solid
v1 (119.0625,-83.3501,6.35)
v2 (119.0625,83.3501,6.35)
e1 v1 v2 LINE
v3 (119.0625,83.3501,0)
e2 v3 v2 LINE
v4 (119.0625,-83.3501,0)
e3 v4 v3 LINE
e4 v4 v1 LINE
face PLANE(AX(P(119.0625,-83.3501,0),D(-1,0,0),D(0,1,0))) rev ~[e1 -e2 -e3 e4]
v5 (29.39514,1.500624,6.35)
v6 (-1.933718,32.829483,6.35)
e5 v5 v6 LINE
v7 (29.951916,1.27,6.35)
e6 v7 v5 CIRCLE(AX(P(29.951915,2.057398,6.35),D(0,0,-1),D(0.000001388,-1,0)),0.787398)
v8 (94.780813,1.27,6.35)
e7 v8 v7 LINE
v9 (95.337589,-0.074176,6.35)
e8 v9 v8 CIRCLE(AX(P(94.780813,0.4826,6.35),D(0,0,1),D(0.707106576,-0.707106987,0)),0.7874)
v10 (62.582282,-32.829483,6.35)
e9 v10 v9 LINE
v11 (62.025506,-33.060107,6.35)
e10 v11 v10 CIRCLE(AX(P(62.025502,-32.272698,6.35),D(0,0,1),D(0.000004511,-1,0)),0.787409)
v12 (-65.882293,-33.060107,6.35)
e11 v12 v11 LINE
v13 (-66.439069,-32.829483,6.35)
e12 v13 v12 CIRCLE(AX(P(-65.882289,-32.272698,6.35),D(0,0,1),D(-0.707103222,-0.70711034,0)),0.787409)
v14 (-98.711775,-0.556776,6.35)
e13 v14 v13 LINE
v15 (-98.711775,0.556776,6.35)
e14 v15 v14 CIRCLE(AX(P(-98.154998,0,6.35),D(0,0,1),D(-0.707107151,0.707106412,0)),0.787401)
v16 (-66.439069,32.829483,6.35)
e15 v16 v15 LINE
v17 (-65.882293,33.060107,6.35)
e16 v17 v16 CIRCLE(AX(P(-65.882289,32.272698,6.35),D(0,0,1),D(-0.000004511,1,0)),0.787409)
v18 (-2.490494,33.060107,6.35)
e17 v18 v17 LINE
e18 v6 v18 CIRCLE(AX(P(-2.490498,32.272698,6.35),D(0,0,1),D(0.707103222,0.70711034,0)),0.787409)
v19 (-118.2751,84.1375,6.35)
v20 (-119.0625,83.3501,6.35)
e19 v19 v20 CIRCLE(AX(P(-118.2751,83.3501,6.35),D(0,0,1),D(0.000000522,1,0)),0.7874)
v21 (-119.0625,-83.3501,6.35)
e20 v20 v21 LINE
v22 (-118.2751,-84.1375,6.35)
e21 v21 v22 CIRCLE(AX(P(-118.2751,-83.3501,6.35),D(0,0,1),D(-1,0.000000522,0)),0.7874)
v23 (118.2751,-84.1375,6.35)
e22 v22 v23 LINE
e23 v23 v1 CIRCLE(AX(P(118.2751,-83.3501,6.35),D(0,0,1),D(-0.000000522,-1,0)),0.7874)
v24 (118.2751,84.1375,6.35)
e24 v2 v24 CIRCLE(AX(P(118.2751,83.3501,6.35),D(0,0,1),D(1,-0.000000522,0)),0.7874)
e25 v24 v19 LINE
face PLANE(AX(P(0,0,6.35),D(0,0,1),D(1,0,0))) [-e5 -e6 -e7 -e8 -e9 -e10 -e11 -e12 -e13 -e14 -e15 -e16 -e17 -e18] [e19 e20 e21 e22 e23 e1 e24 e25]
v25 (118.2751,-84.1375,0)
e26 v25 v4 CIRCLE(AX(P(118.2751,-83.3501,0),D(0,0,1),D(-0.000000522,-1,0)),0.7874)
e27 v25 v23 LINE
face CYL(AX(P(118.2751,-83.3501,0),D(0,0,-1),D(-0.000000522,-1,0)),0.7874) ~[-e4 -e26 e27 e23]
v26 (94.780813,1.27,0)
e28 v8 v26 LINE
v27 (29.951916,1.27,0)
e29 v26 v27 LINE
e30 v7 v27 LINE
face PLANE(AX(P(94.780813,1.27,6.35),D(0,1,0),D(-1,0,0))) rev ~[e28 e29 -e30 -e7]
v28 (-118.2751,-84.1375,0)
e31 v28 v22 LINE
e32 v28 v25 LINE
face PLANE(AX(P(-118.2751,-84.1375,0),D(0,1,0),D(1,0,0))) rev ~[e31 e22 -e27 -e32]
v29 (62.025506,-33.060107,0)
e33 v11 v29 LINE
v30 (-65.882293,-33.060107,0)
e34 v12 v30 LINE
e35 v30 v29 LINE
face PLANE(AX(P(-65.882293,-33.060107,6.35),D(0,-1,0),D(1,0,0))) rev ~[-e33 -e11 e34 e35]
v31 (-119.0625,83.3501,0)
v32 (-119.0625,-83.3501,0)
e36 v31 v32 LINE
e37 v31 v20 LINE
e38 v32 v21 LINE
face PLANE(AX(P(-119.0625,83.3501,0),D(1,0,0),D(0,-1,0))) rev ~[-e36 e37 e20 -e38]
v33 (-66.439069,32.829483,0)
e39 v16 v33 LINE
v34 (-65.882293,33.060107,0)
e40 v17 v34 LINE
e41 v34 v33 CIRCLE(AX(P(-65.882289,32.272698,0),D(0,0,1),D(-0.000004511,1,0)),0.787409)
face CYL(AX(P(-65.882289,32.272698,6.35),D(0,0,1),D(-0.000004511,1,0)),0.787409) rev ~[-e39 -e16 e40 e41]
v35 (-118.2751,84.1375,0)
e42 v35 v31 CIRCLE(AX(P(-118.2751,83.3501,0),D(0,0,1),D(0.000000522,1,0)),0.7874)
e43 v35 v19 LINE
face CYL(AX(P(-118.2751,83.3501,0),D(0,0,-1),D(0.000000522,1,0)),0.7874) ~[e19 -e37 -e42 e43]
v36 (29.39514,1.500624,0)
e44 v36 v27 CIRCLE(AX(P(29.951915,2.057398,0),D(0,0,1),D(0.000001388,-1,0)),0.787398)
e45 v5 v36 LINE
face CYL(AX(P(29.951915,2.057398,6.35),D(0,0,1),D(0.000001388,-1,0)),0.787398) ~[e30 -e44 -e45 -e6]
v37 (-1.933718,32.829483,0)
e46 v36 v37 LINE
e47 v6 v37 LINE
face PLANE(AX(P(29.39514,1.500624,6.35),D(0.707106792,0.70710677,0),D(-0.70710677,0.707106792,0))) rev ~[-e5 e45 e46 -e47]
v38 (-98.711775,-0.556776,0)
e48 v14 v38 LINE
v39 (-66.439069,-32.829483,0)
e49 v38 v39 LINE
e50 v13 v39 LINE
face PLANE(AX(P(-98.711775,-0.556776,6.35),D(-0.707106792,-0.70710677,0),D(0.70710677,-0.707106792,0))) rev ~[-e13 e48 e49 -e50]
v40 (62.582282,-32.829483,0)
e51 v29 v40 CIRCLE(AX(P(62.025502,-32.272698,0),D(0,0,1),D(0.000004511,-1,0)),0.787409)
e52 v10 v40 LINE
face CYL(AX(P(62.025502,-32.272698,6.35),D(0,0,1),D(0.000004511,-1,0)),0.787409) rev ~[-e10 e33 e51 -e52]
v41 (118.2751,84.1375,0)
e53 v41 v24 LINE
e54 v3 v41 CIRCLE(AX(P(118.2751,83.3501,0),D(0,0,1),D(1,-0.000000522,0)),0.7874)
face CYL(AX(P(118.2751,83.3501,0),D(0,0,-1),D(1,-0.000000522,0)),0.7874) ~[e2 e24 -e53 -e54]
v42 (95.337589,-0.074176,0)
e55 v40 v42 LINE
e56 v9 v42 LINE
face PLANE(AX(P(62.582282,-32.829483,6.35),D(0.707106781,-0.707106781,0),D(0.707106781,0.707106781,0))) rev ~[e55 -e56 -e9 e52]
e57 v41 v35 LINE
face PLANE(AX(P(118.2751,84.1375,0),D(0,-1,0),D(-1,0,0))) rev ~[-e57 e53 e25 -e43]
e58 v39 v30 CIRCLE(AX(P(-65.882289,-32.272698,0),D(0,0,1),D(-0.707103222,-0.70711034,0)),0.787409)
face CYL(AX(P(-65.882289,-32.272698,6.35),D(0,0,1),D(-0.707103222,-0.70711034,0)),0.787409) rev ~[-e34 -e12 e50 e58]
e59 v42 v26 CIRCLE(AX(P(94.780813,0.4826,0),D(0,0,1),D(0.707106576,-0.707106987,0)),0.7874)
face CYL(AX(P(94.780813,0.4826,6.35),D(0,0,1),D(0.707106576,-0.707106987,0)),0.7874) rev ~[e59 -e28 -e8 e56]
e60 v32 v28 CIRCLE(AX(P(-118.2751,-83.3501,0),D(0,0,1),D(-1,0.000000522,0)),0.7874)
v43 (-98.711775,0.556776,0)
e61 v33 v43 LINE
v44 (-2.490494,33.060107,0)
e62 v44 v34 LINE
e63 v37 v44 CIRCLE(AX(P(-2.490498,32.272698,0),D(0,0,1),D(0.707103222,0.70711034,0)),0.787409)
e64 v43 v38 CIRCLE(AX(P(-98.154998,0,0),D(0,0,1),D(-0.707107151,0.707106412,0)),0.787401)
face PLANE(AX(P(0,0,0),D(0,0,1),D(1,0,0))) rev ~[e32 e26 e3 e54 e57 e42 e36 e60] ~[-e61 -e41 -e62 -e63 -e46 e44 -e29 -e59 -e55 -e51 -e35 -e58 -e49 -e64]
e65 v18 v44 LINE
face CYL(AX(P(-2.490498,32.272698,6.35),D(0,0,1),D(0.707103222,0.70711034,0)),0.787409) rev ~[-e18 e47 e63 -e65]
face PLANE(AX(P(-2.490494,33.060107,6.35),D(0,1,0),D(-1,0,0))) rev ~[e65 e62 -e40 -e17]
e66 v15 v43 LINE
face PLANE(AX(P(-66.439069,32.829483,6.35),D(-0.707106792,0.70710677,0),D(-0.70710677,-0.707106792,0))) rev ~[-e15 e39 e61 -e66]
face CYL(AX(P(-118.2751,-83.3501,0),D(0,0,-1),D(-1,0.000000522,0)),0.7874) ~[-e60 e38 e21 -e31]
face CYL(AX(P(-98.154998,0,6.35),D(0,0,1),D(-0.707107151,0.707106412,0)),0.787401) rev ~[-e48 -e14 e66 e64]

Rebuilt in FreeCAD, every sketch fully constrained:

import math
import FreeCAD as App
import Part
import Sketcher

V = App.Vector
Q = App.Units.Quantity

doc = App.newDocument("Part")
body = doc.addObject("PartDesign::Body", "Body")

# Sketch on XY plane
sketch1 = doc.addObject("Sketcher::SketchObject", "Sketch")
body.addObject(sketch1)
sketch1.AttachmentSupport = (doc.XY_Plane, [""])
sketch1.MapMode = "FlatFace"
sketch1.addGeometry(Part.LineSegment(V(118.3, 84.1, 0), V(-118.3, 84.1, 0)), False)
sketch1.addGeometry(Part.ArcOfCircle(Part.Circle(V(-118.3, 83.4, 0), V(0, 0, 1), 0.8), math.radians(90), math.radians(180)), False)
sketch1.addGeometry(Part.LineSegment(V(-119.1, 83.4, 0), V(-119.1, -83.4, 0)), False)
sketch1.addGeometry(Part.ArcOfCircle(Part.Circle(V(-118.3, -83.4, 0), V(0, 0, 1), 0.8), math.radians(180), math.radians(270)), False)
sketch1.addGeometry(Part.LineSegment(V(-118.3, -84.1, 0), V(118.3, -84.1, 0)), False)
sketch1.addGeometry(Part.ArcOfCircle(Part.Circle(V(118.3, -83.4, 0), V(0, 0, 1), 0.8), math.radians(-90), math.radians(0)), False)
sketch1.addGeometry(Part.LineSegment(V(119.1, -83.4, 0), V(119.1, 83.4, 0)), False)
sketch1.addGeometry(Part.ArcOfCircle(Part.Circle(V(118.3, 83.4, 0), V(0, 0, 1), 0.8), math.radians(0), math.radians(90)), False)
sketch1.addConstraint(Sketcher.Constraint("Tangent", 0, 2, 1, 1))
sketch1.addConstraint(Sketcher.Constraint("Tangent", 1, 2, 2, 1))
sketch1.addConstraint(Sketcher.Constraint("Tangent", 2, 2, 3, 1))
sketch1.addConstraint(Sketcher.Constraint("Tangent", 3, 2, 4, 1))
sketch1.addConstraint(Sketcher.Constraint("Tangent", 4, 2, 5, 1))
sketch1.addConstraint(Sketcher.Constraint("Tangent", 5, 2, 6, 1))
sketch1.addConstraint(Sketcher.Constraint("Tangent", 6, 2, 7, 1))
sketch1.addConstraint(Sketcher.Constraint("Tangent", 7, 2, 0, 1))
sketch1.addConstraint(Sketcher.Constraint("Horizontal", 0))
sketch1.addConstraint(Sketcher.Constraint("Vertical", 2))
sketch1.addConstraint(Sketcher.Constraint("Horizontal", 4))
sketch1.addConstraint(Sketcher.Constraint("Vertical", 6))
sketch1.addConstraint(Sketcher.Constraint("Equal", 1, 3))
sketch1.addConstraint(Sketcher.Constraint("Equal", 3, 5))
sketch1.addConstraint(Sketcher.Constraint("Equal", 5, 7))
sketch1.addConstraint(Sketcher.Constraint("Symmetric", 1, 3, 5, 3, -1, 1))
sketch1.addConstraint(Sketcher.Constraint("Radius", 1, Q("0.031 in")))
sketch1.addConstraint(Sketcher.Constraint("DistanceX", 0, 2, 0, 1, Q("9.313 in")))
sketch1.addConstraint(Sketcher.Constraint("DistanceY", 2, 2, 2, 1, Q("6.563 in")))
pad1 = doc.addObject("PartDesign::Pad", "Pad")
body.addObject(pad1)
pad1.Profile = sketch1
pad1.Length = Q("0.25 in")

# Sketch on XY plane
sketch2 = doc.addObject("Sketcher::SketchObject", "Sketch001")
body.addObject(sketch2)
sketch2.AttachmentSupport = (doc.XY_Plane, [""])
sketch2.MapMode = "FlatFace"
sketch2.AttachmentOffset = App.Placement(V(0, 0, 0.25 * 25.4), App.Rotation())
sketch2.addGeometry(Part.LineSegment(V(-3, 32, 0), V(-66, 32, 0)), False)
sketch2.addGeometry(Part.LineSegment(V(-66, 32, 0), V(-97, 0, 0)), False)
sketch2.addGeometry(Part.LineSegment(V(-97, 0, 0), V(-66, -32, 0)), False)
sketch2.addGeometry(Part.LineSegment(V(-66, -32, 0), V(62, -32, 0)), False)
sketch2.addGeometry(Part.LineSegment(V(62, -32, 0), V(94, 0, 0)), False)
sketch2.addGeometry(Part.LineSegment(V(94, 0, 0), V(29, 0, 0)), False)
sketch2.addGeometry(Part.LineSegment(V(29, 0, 0), V(-3, 32, 0)), False)
sketch2.addConstraint(Sketcher.Constraint("Coincident", 0, 2, 1, 1))
sketch2.addConstraint(Sketcher.Constraint("Coincident", 1, 2, 2, 1))
sketch2.addConstraint(Sketcher.Constraint("Coincident", 2, 2, 3, 1))
sketch2.addConstraint(Sketcher.Constraint("Coincident", 3, 2, 4, 1))
sketch2.addConstraint(Sketcher.Constraint("Coincident", 4, 2, 5, 1))
sketch2.addConstraint(Sketcher.Constraint("Coincident", 5, 2, 6, 1))
sketch2.addConstraint(Sketcher.Constraint("Coincident", 6, 2, 0, 1))
sketch2.addConstraint(Sketcher.Constraint("Horizontal", 0))
sketch2.addConstraint(Sketcher.Constraint("Horizontal", 3))
sketch2.addConstraint(Sketcher.Constraint("Horizontal", 5))
sketch2.addConstraint(Sketcher.Constraint("Symmetric", 0, 2, 2, 2, -1))
sketch2.addConstraint(Sketcher.Constraint("PointOnObject", 1, 2, -1))
sketch2.addConstraint(Sketcher.Constraint("PointOnObject", 4, 2, -1))
sketch2.addConstraint(Sketcher.Constraint("Perpendicular", 1, 2))
sketch2.addConstraint(Sketcher.Constraint("Perpendicular", 2, 4))
sketch2.addConstraint(Sketcher.Constraint("Perpendicular", 4, 6))
sketch2.addConstraint(Sketcher.Constraint("DistanceX", 0, 2, 0, 1, Q("2.48 in")))
sketch2.addConstraint(Sketcher.Constraint("DistanceX", 3, 1, 3, 2, Q("5.02 in")))
sketch2.addConstraint(Sketcher.Constraint("Distance", 1, Q("1.77 in")))
sketch2.addConstraint(Sketcher.Constraint("DistanceX", 1, 2, -1, 1, Q("3.8375 in")))
pocket1 = doc.addObject("PartDesign::Pocket", "Pocket")
body.addObject(pocket1)
pocket1.Profile = sketch2
pocket1.Length = Q("1 in")

# Sketch on XY plane
sketch3 = doc.addObject("Sketcher::SketchObject", "Sketch002")
body.addObject(sketch3)
sketch3.AttachmentSupport = (doc.XY_Plane, [""])
sketch3.MapMode = "FlatFace"
sketch3.AttachmentOffset = App.Placement(V(0, 0, 0.25 * 25.4), App.Rotation())
sketch3.addGeometry(Part.ArcOfCircle(Part.Circle(V(30, 2.1, 0), V(0, 0, 1), 0.8), math.radians(-135), math.radians(-90)), False)
sketch3.addGeometry(Part.LineSegment(V(29.4, 1.5, 0), V(-1.9, 32.8, 0)), False)
sketch3.addGeometry(Part.ArcOfCircle(Part.Circle(V(-2.5, 32.3, 0), V(0, 0, 1), 0.8), math.radians(45), math.radians(90)), False)
sketch3.addGeometry(Part.LineSegment(V(-2.5, 33.1, 0), V(-65.9, 33.1, 0)), False)
sketch3.addGeometry(Part.ArcOfCircle(Part.Circle(V(-65.9, 32.3, 0), V(0, 0, 1), 0.8), math.radians(90), math.radians(135)), False)
sketch3.addGeometry(Part.LineSegment(V(-66.4, 32.8, 0), V(-98.7, 0.6, 0)), False)
sketch3.addGeometry(Part.ArcOfCircle(Part.Circle(V(-98.2, 0, 0), V(0, 0, 1), 0.8), math.radians(135), math.radians(225)), False)
sketch3.addGeometry(Part.LineSegment(V(-98.7, -0.6, 0), V(-66.4, -32.8, 0)), False)
sketch3.addGeometry(Part.ArcOfCircle(Part.Circle(V(-65.9, -32.3, 0), V(0, 0, 1), 0.8), math.radians(-135), math.radians(-90)), False)
sketch3.addGeometry(Part.LineSegment(V(-65.9, -33.1, 0), V(62, -33.1, 0)), False)
sketch3.addGeometry(Part.ArcOfCircle(Part.Circle(V(62, -32.3, 0), V(0, 0, 1), 0.8), math.radians(-90), math.radians(-45)), False)
sketch3.addGeometry(Part.LineSegment(V(62.6, -32.8, 0), V(95.3, -0.1, 0)), False)
sketch3.addGeometry(Part.ArcOfCircle(Part.Circle(V(94.8, 0.5, 0), V(0, 0, 1), 0.8), math.radians(-45), math.radians(90)), False)
sketch3.addGeometry(Part.LineSegment(V(94.8, 1.3, 0), V(30, 1.3, 0)), False)
sketch3.addConstraint(Sketcher.Constraint("Tangent", 0, 1, 1, 1))
sketch3.addConstraint(Sketcher.Constraint("Coincident", 1, 2, 2, 1))
sketch3.addConstraint(Sketcher.Constraint("Coincident", 2, 2, 3, 1))
sketch3.addConstraint(Sketcher.Constraint("Coincident", 3, 2, 4, 1))
sketch3.addConstraint(Sketcher.Constraint("Coincident", 4, 2, 5, 1))
sketch3.addConstraint(Sketcher.Constraint("Tangent", 5, 2, 6, 1))
sketch3.addConstraint(Sketcher.Constraint("Tangent", 6, 2, 7, 1))
sketch3.addConstraint(Sketcher.Constraint("Coincident", 7, 2, 8, 1))
sketch3.addConstraint(Sketcher.Constraint("Coincident", 8, 2, 9, 1))
sketch3.addConstraint(Sketcher.Constraint("Coincident", 9, 2, 10, 1))
sketch3.addConstraint(Sketcher.Constraint("Coincident", 10, 2, 11, 1))
sketch3.addConstraint(Sketcher.Constraint("Tangent", 11, 2, 12, 1))
sketch3.addConstraint(Sketcher.Constraint("Tangent", 12, 2, 13, 1))
sketch3.addConstraint(Sketcher.Constraint("Tangent", 13, 2, 0, 2))
sketch3.addConstraint(Sketcher.Constraint("Horizontal", 3))
sketch3.addConstraint(Sketcher.Constraint("Horizontal", 9))
sketch3.addConstraint(Sketcher.Constraint("Horizontal", 13))
sketch3.addConstraint(Sketcher.Constraint("Equal", 2, 4))
sketch3.addConstraint(Sketcher.Constraint("Equal", 4, 8))
sketch3.addConstraint(Sketcher.Constraint("Equal", 8, 10))
sketch3.addConstraint(Sketcher.Constraint("Equal", 6, 12))
sketch3.addConstraint(Sketcher.Constraint("Symmetric", 4, 3, 8, 3, -1))
sketch3.addConstraint(Sketcher.Constraint("PointOnObject", 6, 3, -1))
sketch3.addConstraint(Sketcher.Constraint("Perpendicular", 1, 5))
sketch3.addConstraint(Sketcher.Constraint("Perpendicular", 5, 7))
sketch3.addConstraint(Sketcher.Constraint("Perpendicular", 7, 11))
sketch3.addConstraint(Sketcher.Constraint("Horizontal", 1, 2, 4, 2))
sketch3.addConstraint(Sketcher.Constraint("Horizontal", 7, 2, 10, 2))
sketch3.addConstraint(Sketcher.Constraint("Vertical", 4, 2, 7, 2))
sketch3.addConstraint(Sketcher.Constraint("Vertical", 3, 2, 8, 2))
sketch3.addConstraint(Sketcher.Constraint("Radius", 0, Q("0.0309999 in")))
sketch3.addConstraint(Sketcher.Constraint("Radius", 6, Q("0.031 in")))
sketch3.addConstraint(Sketcher.Constraint("DistanceY", -1, 1, 12, 2, Q("0.05 in")))
sketch3.addConstraint(Sketcher.Constraint("DistanceX", 2, 3, 10, 3, Q("2.54 in")))
sketch3.addConstraint(Sketcher.Constraint("DistanceX", 2, 3, 9, 2, Q("2.5400001 in")))
sketch3.addConstraint(Sketcher.Constraint("Radius", 2, 0.787409))
sketch3.addConstraint(Sketcher.Constraint("DistanceX", 4, 3, 0, 3, Q("3.7730002 in")))
sketch3.addConstraint(Sketcher.Constraint("DistanceX", 3, 2, 3, 1, 63.391799))
sketch3.addConstraint(Sketcher.Constraint("DistanceX", 9, 1, 9, 2, 127.907799))
sketch3.addConstraint(Sketcher.Constraint("Distance", 5, 45.640499))
sketch3.addConstraint(Sketcher.Constraint("DistanceX", 6, 3, -1, 1, 98.154998))
sketch3.addConstraint(Sketcher.Constraint("DistanceY", 0, 3, 2, 3, 30.2153))
pocket2 = doc.addObject("PartDesign::Pocket", "Pocket001")
body.addObject(pocket2)
pocket2.Profile = sketch3
pocket2.Length = Q("1 in")

doc.recompute()
